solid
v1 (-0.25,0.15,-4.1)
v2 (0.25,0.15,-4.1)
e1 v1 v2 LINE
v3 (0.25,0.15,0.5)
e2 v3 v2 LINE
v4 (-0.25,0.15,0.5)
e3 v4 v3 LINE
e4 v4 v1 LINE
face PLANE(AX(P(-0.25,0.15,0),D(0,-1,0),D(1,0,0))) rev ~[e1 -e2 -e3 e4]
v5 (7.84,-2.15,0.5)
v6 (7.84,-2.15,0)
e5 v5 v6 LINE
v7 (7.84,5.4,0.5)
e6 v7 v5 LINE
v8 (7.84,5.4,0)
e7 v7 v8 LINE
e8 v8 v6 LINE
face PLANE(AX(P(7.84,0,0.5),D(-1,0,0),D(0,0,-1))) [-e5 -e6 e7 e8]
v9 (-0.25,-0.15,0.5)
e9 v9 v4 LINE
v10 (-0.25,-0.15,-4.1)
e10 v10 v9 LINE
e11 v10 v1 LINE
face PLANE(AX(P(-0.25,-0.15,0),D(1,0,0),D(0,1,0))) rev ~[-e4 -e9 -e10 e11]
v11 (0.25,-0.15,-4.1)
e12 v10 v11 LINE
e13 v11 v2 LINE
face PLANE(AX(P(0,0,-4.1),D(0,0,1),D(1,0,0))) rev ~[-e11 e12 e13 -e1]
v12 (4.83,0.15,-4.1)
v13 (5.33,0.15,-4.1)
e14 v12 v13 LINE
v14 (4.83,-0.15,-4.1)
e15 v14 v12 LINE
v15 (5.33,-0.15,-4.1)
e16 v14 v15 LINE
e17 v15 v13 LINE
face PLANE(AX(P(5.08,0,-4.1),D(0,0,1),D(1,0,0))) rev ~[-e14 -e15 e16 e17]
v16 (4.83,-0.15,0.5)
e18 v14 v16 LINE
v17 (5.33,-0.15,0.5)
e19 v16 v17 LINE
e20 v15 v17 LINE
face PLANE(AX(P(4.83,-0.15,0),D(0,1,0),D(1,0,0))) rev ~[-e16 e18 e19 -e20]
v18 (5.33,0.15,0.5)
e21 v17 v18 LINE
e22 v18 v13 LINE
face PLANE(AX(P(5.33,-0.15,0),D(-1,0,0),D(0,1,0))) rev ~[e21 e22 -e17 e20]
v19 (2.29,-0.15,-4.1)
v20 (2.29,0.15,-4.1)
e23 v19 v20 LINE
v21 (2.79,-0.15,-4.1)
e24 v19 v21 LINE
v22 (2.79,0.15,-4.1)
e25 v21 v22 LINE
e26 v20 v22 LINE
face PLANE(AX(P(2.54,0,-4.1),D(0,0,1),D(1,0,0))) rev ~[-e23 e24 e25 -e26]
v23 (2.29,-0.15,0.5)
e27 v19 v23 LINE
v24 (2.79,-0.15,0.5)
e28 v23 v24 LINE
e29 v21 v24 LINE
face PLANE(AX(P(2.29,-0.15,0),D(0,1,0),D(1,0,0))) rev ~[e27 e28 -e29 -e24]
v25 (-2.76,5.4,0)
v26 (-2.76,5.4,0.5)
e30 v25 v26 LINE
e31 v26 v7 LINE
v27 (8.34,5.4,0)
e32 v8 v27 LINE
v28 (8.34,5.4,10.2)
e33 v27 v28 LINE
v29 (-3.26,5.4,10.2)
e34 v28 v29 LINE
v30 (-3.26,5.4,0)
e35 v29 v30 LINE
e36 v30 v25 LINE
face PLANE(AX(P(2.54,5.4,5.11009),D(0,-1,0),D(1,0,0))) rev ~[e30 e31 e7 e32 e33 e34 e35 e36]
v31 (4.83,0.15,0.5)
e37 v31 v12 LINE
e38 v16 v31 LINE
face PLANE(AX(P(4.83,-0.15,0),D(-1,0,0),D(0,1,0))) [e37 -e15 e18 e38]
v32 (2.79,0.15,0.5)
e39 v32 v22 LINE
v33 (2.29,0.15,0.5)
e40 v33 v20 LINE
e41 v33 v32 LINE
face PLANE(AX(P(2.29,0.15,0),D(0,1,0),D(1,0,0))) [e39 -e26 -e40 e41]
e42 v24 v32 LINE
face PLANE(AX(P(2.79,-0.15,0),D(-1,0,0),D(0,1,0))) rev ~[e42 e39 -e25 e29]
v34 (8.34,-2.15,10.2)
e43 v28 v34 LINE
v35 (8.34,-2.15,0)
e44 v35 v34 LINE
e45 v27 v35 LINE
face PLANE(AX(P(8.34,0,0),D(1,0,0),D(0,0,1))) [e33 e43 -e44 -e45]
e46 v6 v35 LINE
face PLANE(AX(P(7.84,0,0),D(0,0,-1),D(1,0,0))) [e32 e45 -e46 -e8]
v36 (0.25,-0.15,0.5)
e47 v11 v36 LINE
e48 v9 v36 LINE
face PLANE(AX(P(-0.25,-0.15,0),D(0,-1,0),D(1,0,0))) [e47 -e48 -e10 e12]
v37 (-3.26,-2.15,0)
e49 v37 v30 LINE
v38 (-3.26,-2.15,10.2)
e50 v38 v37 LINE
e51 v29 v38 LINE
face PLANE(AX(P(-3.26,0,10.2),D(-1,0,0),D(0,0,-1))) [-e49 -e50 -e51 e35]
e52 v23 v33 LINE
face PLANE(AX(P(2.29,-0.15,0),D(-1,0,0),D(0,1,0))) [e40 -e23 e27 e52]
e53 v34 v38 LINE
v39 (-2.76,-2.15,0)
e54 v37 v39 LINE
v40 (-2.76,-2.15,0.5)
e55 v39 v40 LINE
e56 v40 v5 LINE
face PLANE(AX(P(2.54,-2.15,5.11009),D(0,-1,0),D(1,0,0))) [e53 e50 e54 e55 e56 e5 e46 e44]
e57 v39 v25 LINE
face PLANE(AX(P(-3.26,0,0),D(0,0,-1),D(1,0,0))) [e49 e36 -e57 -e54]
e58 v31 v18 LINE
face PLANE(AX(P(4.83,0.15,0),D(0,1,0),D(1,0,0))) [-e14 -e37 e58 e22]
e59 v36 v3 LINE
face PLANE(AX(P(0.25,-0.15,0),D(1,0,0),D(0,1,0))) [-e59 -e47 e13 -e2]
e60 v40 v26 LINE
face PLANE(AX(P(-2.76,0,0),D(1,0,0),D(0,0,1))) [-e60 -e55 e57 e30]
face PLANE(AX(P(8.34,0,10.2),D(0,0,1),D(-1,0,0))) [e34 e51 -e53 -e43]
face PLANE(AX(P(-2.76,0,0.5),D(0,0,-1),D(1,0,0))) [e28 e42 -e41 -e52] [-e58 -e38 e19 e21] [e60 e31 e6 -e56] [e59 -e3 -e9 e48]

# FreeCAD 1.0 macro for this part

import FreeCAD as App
import Part
import Sketcher

V = App.Vector

doc = App.newDocument("Part")
body = doc.addObject("PartDesign::Body", "Body")

sketch1 = body.newObject("Sketcher::SketchObject", "Sketch")
sketch1.AttachmentSupport = (doc.getObject("XZ_Plane"), [""])
sketch1.MapMode = "FlatFace"
sketch1.addGeometry([
    Part.LineSegment(V(-2.8, 0.5, 0), V(7.8, 0.5, 0)),
    Part.LineSegment(V(7.8, 0.5, 0), V(7.8, 0, 0)),
    Part.LineSegment(V(7.8, 0, 0), V(8.3, 0, 0)),
    Part.LineSegment(V(8.3, 0, 0), V(8.3, 10.2, 0)),
    Part.LineSegment(V(8.3, 10.2, 0), V(-3.3, 10.2, 0)),
    Part.LineSegment(V(-3.3, 10.2, 0), V(-3.3, 0, 0)),
    Part.LineSegment(V(-3.3, 0, 0), V(-2.8, 0, 0)),
    Part.LineSegment(V(-2.8, 0, 0), V(-2.8, 0.5, 0)),
], False)
sketch1.addConstraint([
    Sketcher.Constraint("Coincident", 0, 2, 1, 1),
    Sketcher.Constraint("Coincident", 1, 2, 2, 1),
    Sketcher.Constraint("Coincident", 2, 2, 3, 1),
    Sketcher.Constraint("Coincident", 3, 2, 4, 1),
    Sketcher.Constraint("Coincident", 4, 2, 5, 1),
    Sketcher.Constraint("Coincident", 5, 2, 6, 1),
    Sketcher.Constraint("Coincident", 6, 2, 7, 1),
    Sketcher.Constraint("Coincident", 7, 2, 0, 1),
    Sketcher.Constraint("Horizontal", 0),
    Sketcher.Constraint("Vertical", 1),
    Sketcher.Constraint("Horizontal", 2),
    Sketcher.Constraint("Vertical", 3),
    Sketcher.Constraint("Horizontal", 4),
    Sketcher.Constraint("Vertical", 5),
    Sketcher.Constraint("Horizontal", 6),
    Sketcher.Constraint("Vertical", 7),
    Sketcher.Constraint("PointOnObject", 1, 2, -1),
    Sketcher.Constraint("PointOnObject", 5, 2, -1),
    Sketcher.Constraint("Equal", 2, 6),
    Sketcher.Constraint("Equal", 6, 1),
    Sketcher.Constraint("DistanceX", 0, 1, 0, 2, 10.6),
    Sketcher.Constraint("DistanceX", 2, 1, 2, 2, 0.5),
    Sketcher.Constraint("DistanceY", 3, 1, 3, 2, 10.2),
    Sketcher.Constraint("DistanceX", -1, 1, 0, 2, 7.84),
])
pad1 = body.newObject("PartDesign::Pad", "Pad")
pad1.Profile = sketch1
pad1.Type = "TwoLengths"
pad1.Length = 2.15
pad1.Length2 = 5.4

sketch2 = body.newObject("Sketcher::SketchObject", "Sketch001")
sketch2.AttachmentSupport = (doc.getObject("XY_Plane"), [""])
sketch2.MapMode = "FlatFace"
sketch2.addGeometry([
    Part.LineSegment(V(-0.25, 0.15, 0), V(-0.25, -0.15, 0)),
    Part.LineSegment(V(-0.25, -0.15, 0), V(0.25, -0.15, 0)),
    Part.LineSegment(V(0.25, -0.15, 0), V(0.25, 0.15, 0)),
    Part.LineSegment(V(0.25, 0.15, 0), V(-0.25, 0.15, 0)),
], False)
sketch2.addConstraint([
    Sketcher.Constraint("Coincident", 0, 2, 1, 1),
    Sketcher.Constraint("Coincident", 1, 2, 2, 1),
    Sketcher.Constraint("Coincident", 2, 2, 3, 1),
    Sketcher.Constraint("Coincident", 3, 2, 0, 1),
    Sketcher.Constraint("Vertical", 0),
    Sketcher.Constraint("Horizontal", 1),
    Sketcher.Constraint("Vertical", 2),
    Sketcher.Constraint("Horizontal", 3),
    Sketcher.Constraint("Symmetric", 0, 2, 2, 2, -1, 1),
    Sketcher.Constraint("DistanceX", 1, 1, 1, 2, 0.5),
    Sketcher.Constraint("DistanceY", 0, 2, 0, 1, 0.3),
])
pad2 = body.newObject("PartDesign::Pad", "Pad001")
pad2.Profile = sketch2
pad2.Type = "TwoLengths"
pad2.Length = 0.6
pad2.Length2 = 4.1
doc.recompute()

linearpattern = body.newObject("PartDesign::LinearPattern", "LinearPattern")
linearpattern.Originals = [pad2]
linearpattern.Direction = (doc.getObject("X_Axis"), [""])
linearpattern.Mode = "offset"
linearpattern.Offset = 2.54
linearpattern.Occurrences = 3
body.Tip = linearpattern

doc.recompute()
